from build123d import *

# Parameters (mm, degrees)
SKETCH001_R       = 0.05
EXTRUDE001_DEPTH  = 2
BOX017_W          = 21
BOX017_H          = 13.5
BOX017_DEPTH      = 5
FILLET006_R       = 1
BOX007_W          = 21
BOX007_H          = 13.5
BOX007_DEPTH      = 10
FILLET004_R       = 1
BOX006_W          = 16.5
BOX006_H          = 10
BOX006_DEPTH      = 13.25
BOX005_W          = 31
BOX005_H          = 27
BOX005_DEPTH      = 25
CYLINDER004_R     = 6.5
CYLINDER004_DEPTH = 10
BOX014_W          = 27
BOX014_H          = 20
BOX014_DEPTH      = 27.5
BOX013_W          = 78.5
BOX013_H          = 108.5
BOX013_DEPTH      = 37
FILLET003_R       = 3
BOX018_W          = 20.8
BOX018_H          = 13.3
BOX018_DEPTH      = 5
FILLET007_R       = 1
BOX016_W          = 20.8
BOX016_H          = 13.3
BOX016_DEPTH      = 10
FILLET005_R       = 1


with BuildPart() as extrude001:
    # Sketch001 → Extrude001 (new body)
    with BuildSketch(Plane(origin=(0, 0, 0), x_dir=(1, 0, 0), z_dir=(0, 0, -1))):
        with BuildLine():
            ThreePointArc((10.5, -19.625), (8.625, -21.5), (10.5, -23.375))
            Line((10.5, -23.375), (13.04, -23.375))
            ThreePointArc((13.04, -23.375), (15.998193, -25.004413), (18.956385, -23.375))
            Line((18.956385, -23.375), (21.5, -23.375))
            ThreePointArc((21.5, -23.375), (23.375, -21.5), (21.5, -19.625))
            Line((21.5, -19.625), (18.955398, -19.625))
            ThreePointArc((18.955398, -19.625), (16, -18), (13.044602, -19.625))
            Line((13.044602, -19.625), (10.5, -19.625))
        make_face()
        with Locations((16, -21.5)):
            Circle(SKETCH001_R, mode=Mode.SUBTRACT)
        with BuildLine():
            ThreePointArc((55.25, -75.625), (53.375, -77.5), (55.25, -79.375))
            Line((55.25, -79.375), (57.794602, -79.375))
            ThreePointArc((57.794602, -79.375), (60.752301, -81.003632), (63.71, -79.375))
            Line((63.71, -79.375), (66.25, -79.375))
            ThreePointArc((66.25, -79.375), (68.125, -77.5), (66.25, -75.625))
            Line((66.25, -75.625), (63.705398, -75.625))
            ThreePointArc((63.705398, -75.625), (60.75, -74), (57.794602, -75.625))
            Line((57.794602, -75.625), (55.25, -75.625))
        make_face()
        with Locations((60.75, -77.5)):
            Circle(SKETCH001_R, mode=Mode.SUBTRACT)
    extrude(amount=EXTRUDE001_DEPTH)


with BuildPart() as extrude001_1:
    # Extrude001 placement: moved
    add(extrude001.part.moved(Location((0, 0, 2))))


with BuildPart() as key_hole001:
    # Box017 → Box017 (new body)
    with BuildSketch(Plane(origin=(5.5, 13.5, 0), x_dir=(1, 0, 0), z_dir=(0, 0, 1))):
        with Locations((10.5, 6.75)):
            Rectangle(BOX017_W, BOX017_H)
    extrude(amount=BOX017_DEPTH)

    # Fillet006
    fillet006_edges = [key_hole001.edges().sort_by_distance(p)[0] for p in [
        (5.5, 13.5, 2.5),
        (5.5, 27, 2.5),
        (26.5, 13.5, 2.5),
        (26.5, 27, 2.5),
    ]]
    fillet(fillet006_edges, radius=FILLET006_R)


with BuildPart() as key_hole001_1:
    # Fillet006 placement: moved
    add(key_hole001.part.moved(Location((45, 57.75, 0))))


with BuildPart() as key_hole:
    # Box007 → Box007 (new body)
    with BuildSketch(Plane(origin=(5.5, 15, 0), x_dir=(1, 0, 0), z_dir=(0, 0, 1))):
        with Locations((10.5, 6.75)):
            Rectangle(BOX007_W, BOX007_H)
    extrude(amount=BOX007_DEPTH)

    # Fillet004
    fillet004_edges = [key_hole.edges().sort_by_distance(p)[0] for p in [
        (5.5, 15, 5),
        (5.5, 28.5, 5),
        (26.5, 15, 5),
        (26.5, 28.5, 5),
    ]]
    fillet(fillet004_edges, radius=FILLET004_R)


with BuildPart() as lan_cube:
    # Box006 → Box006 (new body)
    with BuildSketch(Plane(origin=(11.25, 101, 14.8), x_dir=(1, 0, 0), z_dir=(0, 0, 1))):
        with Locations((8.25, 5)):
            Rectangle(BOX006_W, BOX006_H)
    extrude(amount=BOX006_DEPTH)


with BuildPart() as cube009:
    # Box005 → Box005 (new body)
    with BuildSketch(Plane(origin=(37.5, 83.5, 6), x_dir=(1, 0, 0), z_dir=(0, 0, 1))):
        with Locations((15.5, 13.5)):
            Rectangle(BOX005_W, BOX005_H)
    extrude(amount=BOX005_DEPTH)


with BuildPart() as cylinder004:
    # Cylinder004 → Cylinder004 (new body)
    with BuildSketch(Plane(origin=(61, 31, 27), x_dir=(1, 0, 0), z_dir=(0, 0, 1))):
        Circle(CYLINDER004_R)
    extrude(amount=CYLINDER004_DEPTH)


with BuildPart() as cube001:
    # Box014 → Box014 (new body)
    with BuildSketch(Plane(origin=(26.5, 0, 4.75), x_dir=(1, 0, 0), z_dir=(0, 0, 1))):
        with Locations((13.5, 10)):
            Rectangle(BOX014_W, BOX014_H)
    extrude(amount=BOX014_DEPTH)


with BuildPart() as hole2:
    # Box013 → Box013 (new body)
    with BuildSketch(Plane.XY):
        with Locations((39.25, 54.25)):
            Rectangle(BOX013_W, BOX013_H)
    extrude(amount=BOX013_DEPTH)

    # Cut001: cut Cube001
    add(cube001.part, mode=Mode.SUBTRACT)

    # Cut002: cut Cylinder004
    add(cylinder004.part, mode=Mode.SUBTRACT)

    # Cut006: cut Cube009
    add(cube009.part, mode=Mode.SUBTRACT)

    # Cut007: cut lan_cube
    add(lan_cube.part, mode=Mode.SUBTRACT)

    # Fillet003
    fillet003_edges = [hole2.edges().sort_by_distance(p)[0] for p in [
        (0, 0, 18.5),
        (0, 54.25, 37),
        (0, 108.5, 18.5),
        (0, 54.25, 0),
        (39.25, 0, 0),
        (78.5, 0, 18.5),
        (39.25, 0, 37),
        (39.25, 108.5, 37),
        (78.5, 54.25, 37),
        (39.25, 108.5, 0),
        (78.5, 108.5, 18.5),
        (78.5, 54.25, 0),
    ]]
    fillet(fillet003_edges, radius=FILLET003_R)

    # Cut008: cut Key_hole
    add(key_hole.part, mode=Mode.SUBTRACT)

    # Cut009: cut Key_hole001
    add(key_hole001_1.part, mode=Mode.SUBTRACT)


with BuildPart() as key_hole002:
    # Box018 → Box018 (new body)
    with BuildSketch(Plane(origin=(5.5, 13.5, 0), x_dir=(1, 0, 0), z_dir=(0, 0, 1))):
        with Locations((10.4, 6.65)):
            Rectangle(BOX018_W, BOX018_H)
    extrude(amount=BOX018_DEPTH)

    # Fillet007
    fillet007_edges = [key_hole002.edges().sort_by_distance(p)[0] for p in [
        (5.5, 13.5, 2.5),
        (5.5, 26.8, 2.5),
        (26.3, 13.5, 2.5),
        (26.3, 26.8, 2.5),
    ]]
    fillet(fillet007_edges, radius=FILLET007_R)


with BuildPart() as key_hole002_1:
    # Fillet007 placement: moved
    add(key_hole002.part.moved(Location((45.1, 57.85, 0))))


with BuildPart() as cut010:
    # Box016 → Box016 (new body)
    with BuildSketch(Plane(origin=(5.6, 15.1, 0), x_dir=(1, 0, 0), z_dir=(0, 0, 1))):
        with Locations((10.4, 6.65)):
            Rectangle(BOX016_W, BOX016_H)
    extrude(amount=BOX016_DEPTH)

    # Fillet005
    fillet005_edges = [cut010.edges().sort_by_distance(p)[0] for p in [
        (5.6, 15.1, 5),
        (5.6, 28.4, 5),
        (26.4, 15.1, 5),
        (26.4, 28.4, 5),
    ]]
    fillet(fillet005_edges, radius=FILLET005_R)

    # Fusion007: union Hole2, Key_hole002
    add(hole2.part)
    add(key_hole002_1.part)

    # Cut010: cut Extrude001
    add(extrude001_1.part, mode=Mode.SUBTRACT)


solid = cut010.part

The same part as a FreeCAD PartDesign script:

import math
import FreeCAD as App
import Part
import Sketcher
from FreeCAD import Vector


def edges_at(feature, points):
    """Names of the edges that pass closest to the given points."""
    edges = feature.Shape.Edges
    near = lambda p: min(range(len(edges)), key=lambda i: edges[i].distToShape(Part.Vertex(*p))[0])
    return sorted({f"Edge{near(p) + 1}" for p in points})

doc = App.newDocument("Part")
body = doc.addObject("PartDesign::Body", "Body")
body.AllowCompound = True

# Sketch on XY plane
sketch1 = doc.addObject("Sketcher::SketchObject", "Sketch")
body.addObject(sketch1)
sketch1.AttachmentSupport = (doc.XY_Plane, [""])
sketch1.MapMode = "FlatFace"
sketch1.addGeometry([
    Part.ArcOfCircle(Part.Circle(Vector(10.5, 21.5, 0), Vector(0, 0, 1), 1.875), math.radians(90), math.radians(270)),  # 0
    Part.LineSegment(Vector(10.5, 23.375, 0), Vector(13.04, 23.375, 0)),  # 1
    Part.ArcOfCircle(Part.Circle(Vector(15.998193, 21.504413, 0), Vector(0, 0, 1), 3.5), math.radians(32.306848), math.radians(147.693152)),  # 2
    Part.LineSegment(Vector(18.956385, 23.375, 0), Vector(21.5, 23.375, 0)),  # 3
    Part.ArcOfCircle(Part.Circle(Vector(21.5, 21.5, 0), Vector(0, 0, 1), 1.875), math.radians(-90), math.radians(90)),  # 4
    Part.LineSegment(Vector(21.5, 19.625, 0), Vector(18.955398, 19.625, 0)),  # 5
    Part.ArcOfCircle(Part.Circle(Vector(16, 21.500001, 0), Vector(0, 0, 1), 3.500001), math.radians(-147.607628), math.radians(-32.392372)),  # 6
    Part.LineSegment(Vector(13.044602, 19.625, 0), Vector(10.5, 19.625, 0)),  # 7
    Part.Circle(Vector(16, 21.5, 0), Vector(0, 0, 1), 0.05),  # 8
    Part.ArcOfCircle(Part.Circle(Vector(55.25, 77.5, 0), Vector(0, 0, 1), 1.875), math.radians(90), math.radians(270)),  # 9
    Part.LineSegment(Vector(55.25, 79.375, 0), Vector(57.794602, 79.375, 0)),  # 10
    Part.ArcOfCircle(Part.Circle(Vector(60.752301, 77.503632, 0), Vector(0, 0, 1), 3.5), math.radians(32.321984), math.radians(147.678016)),  # 11
    Part.LineSegment(Vector(63.71, 79.375, 0), Vector(66.25, 79.375, 0)),  # 12
    Part.ArcOfCircle(Part.Circle(Vector(66.25, 77.5, 0), Vector(0, 0, 1), 1.875), math.radians(-90), math.radians(90)),  # 13
    Part.LineSegment(Vector(66.25, 75.625, 0), Vector(63.705398, 75.625, 0)),  # 14
    Part.ArcOfCircle(Part.Circle(Vector(60.75, 77.500001, 0), Vector(0, 0, 1), 3.500001), math.radians(-147.607628), math.radians(-32.392372)),  # 15
    Part.LineSegment(Vector(57.794602, 75.625, 0), Vector(55.25, 75.625, 0)),  # 16
    Part.Circle(Vector(60.75, 77.5, 0), Vector(0, 0, 1), 0.05),  # 17
], False)
sketch1.addConstraint([
    Sketcher.Constraint("Tangent", 0, 1, 1, 1),
    Sketcher.Constraint("Coincident", 1, 2, 2, 2),
    Sketcher.Constraint("Coincident", 2, 1, 3, 1),
    Sketcher.Constraint("Tangent", 3, 2, 4, 2),
    Sketcher.Constraint("Tangent", 4, 1, 5, 1),
    Sketcher.Constraint("Coincident", 5, 2, 6, 2),
    Sketcher.Constraint("Coincident", 6, 1, 7, 1),
    Sketcher.Constraint("Tangent", 7, 2, 0, 2),
    Sketcher.Constraint("Tangent", 9, 1, 10, 1),
    Sketcher.Constraint("Coincident", 10, 2, 11, 2),
    Sketcher.Constraint("Coincident", 11, 1, 12, 1),
    Sketcher.Constraint("Tangent", 12, 2, 13, 2),
    Sketcher.Constraint("Tangent", 13, 1, 14, 1),
    Sketcher.Constraint("Coincident", 14, 2, 15, 2),
    Sketcher.Constraint("Coincident", 15, 1, 16, 1),
    Sketcher.Constraint("Tangent", 16, 2, 9, 2),
    Sketcher.Constraint("Horizontal", 1),
    Sketcher.Constraint("Horizontal", 3),
    Sketcher.Constraint("Horizontal", 5),
    Sketcher.Constraint("Horizontal", 7),
    Sketcher.Constraint("Horizontal", 10),
    Sketcher.Constraint("Horizontal", 12),
    Sketcher.Constraint("Horizontal", 14),
    Sketcher.Constraint("Horizontal", 16),
    Sketcher.Constraint("Coincident", 8, 3, 6, 3),
    Sketcher.Constraint("Coincident", 17, 3, 15, 3),
    Sketcher.Constraint("Equal", 0, 4),
    Sketcher.Constraint("Equal", 2, 6),
    Sketcher.Constraint("Equal", 4, 9),
    Sketcher.Constraint("Equal", 6, 11),
    Sketcher.Constraint("Equal", 9, 13),
    Sketcher.Constraint("Equal", 11, 15),
    Sketcher.Constraint("Equal", 8, 17),
    Sketcher.Constraint("Horizontal", 0, 3, 4, 3),
    Sketcher.Constraint("Horizontal", 4, 3, 6, 3),
    Sketcher.Constraint("Horizontal", 9, 3, 13, 3),
    Sketcher.Constraint("Horizontal", 13, 3, 15, 3),
    Sketcher.Constraint("Vertical", 10, 2, 15, 1),
    Sketcher.Constraint("Equal", 5, 7),
    Sketcher.Constraint("Equal", 7, 10),
    Sketcher.Constraint("Equal", 1, 12),
    Sketcher.Constraint("Equal", 10, 14),
    Sketcher.Constraint("Diameter", 8, 0.1),
    Sketcher.Constraint("Radius", 2, 3.5),
    Sketcher.Constraint("DistanceX", -1, 1, 6, 3, 16.0),
    Sketcher.Constraint("Radius", 0, 1.875),
    Sketcher.Constraint("DistanceX", 0, 3, 4, 3, 11.0),
    Sketcher.Constraint("DistanceY", 4, 3, 9, 3, 56.0),
    Sketcher.Constraint("DistanceX", 1, 1, 1, 2, 2.54),
    Sketcher.Constraint("DistanceY", -1, 1, 0, 3, 21.5),
    Sketcher.Constraint("DistanceX", -1, 1, 9, 3, 55.25),
    Sketcher.Constraint("DistanceX", 3, 1, 3, 2, 2.543615),
])
pad1 = doc.addObject("PartDesign::Pad", "Pad")
body.addObject(pad1)
pad1.Profile = sketch1
pad1.Length = 2
pad1.Reversed = True
body2 = doc.addObject("PartDesign::Body", "Body001")
body2.AllowCompound = True
doc.recompute()

body.Placement = App.Placement(Vector(0, 0, 2), App.Rotation(Vector(0, 0, 1), 0))
boolean = doc.addObject("PartDesign::Boolean", "Boolean")
body2.addObject(boolean)
boolean.Type = "Fuse"
boolean.addObjects([body])
body3 = doc.addObject("PartDesign::Body", "Body002")

# Sketch on XY plane
sketch2 = doc.addObject("Sketcher::SketchObject", "Sketch001")
body3.addObject(sketch2)
sketch2.AttachmentSupport = (doc.getObject("XY_Plane002"), [""])
sketch2.MapMode = "FlatFace"
sketch2.addGeometry([
    Part.LineSegment(Vector(5.5, 27, 0), Vector(5.5, 13.5, 0)),
    Part.LineSegment(Vector(5.5, 13.5, 0), Vector(26.5, 13.5, 0)),
    Part.LineSegment(Vector(26.5, 13.5, 0), Vector(26.5, 27, 0)),
    Part.LineSegment(Vector(26.5, 27, 0), Vector(5.5, 27, 0)),
], False)
sketch2.addConstraint([
    Sketcher.Constraint("Coincident", 0, 2, 1, 1),
    Sketcher.Constraint("Coincident", 1, 2, 2, 1),
    Sketcher.Constraint("Coincident", 2, 2, 3, 1),
    Sketcher.Constraint("Coincident", 3, 2, 0, 1),
    Sketcher.Constraint("Vertical", 0),
    Sketcher.Constraint("Horizontal", 1),
    Sketcher.Constraint("Vertical", 2),
    Sketcher.Constraint("Horizontal", 3),
    Sketcher.Constraint("DistanceX", 1, 1, 1, 2, 21.0),
    Sketcher.Constraint("DistanceY", 0, 2, 0, 1, 13.5),
    Sketcher.Constraint("DistanceY", -1, 1, 2, 2, 27.0),
    Sketcher.Constraint("DistanceX", -1, 1, 0, 2, 5.5),
])
pad2 = doc.addObject("PartDesign::Pad", "Pad001")
body3.addObject(pad2)
pad2.Profile = sketch2
pad2.Length = 5
doc.recompute()

fillet = doc.addObject("PartDesign::Fillet", "Fillet")
body3.addObject(fillet)
fillet.Base = (pad2, edges_at(pad2, [
    (5.5, 13.5, 2.5),
    (5.5, 27, 2.5),
    (26.5, 13.5, 2.5),
    (26.5, 27, 2.5),
]))
fillet.Radius = 1
body4 = doc.addObject("PartDesign::Body", "Body003")
doc.recompute()

body3.Placement = App.Placement(Vector(45, 57.75, 0), App.Rotation(Vector(0, 0, 1), 0))
boolean2 = doc.addObject("PartDesign::Boolean", "Boolean001")
body4.addObject(boolean2)
boolean2.Type = "Fuse"
boolean2.addObjects([body3])
body5 = doc.addObject("PartDesign::Body", "Body004")

# Sketch on XY plane
sketch3 = doc.addObject("Sketcher::SketchObject", "Sketch002")
body5.addObject(sketch3)
sketch3.AttachmentSupport = (doc.getObject("XY_Plane004"), [""])
sketch3.MapMode = "FlatFace"
sketch3.addGeometry([
    Part.LineSegment(Vector(5.5, 28.5, 0), Vector(5.5, 15, 0)),
    Part.LineSegment(Vector(5.5, 15, 0), Vector(26.5, 15, 0)),
    Part.LineSegment(Vector(26.5, 15, 0), Vector(26.5, 28.5, 0)),
    Part.LineSegment(Vector(26.5, 28.5, 0), Vector(5.5, 28.5, 0)),
], False)
sketch3.addConstraint([
    Sketcher.Constraint("Coincident", 0, 2, 1, 1),
    Sketcher.Constraint("Coincident", 1, 2, 2, 1),
    Sketcher.Constraint("Coincident", 2, 2, 3, 1),
    Sketcher.Constraint("Coincident", 3, 2, 0, 1),
    Sketcher.Constraint("Vertical", 0),
    Sketcher.Constraint("Horizontal", 1),
    Sketcher.Constraint("Vertical", 2),
    Sketcher.Constraint("Horizontal", 3),
    Sketcher.Constraint("DistanceX", 1, 1, 1, 2, 21.0),
    Sketcher.Constraint("DistanceY", 0, 2, 0, 1, 13.5),
    Sketcher.Constraint("DistanceY", -1, 1, 0, 2, 15.0),
    Sketcher.Constraint("DistanceX", -1, 1, 0, 2, 5.5),
])
pad3 = doc.addObject("PartDesign::Pad", "Pad002")
body5.addObject(pad3)
pad3.Profile = sketch3
pad3.Length = 10
doc.recompute()

fillet2 = doc.addObject("PartDesign::Fillet", "Fillet001")
body5.addObject(fillet2)
fillet2.Base = (pad3, edges_at(pad3, [
    (5.5, 15, 5),
    (5.5, 28.5, 5),
    (26.5, 15, 5),
    (26.5, 28.5, 5),
]))
fillet2.Radius = 1
body6 = doc.addObject("PartDesign::Body", "Body005")

# Sketch on XY plane
sketch4 = doc.addObject("Sketcher::SketchObject", "Sketch003")
body6.addObject(sketch4)
sketch4.AttachmentSupport = (doc.getObject("XY_Plane005"), [""])
sketch4.MapMode = "FlatFace"
sketch4.AttachmentOffset = App.Placement(Vector(0, 0, 14.8), App.Rotation())
sketch4.addGeometry([
    Part.LineSegment(Vector(11.25, 111, 0), Vector(11.25, 101, 0)),
    Part.LineSegment(Vector(11.25, 101, 0), Vector(27.75, 101, 0)),
    Part.LineSegment(Vector(27.75, 101, 0), Vector(27.75, 111, 0)),
    Part.LineSegment(Vector(27.75, 111, 0), Vector(11.25, 111, 0)),
], False)
sketch4.addConstraint([
    Sketcher.Constraint("Coincident", 0, 2, 1, 1),
    Sketcher.Constraint("Coincident", 1, 2, 2, 1),
    Sketcher.Constraint("Coincident", 2, 2, 3, 1),
    Sketcher.Constraint("Coincident", 3, 2, 0, 1),
    Sketcher.Constraint("Vertical", 0),
    Sketcher.Constraint("Horizontal", 1),
    Sketcher.Constraint("Vertical", 2),
    Sketcher.Constraint("Horizontal", 3),
    Sketcher.Constraint("DistanceY", 0, 2, 0, 1, 10.0),
    Sketcher.Constraint("DistanceX", 1, 1, 1, 2, 16.5),
    Sketcher.Constraint("DistanceY", -1, 1, 0, 2, 101.0),
    Sketcher.Constraint("DistanceX", -1, 1, 0, 2, 11.25),
])
pad4 = doc.addObject("PartDesign::Pad", "Pad003")
body6.addObject(pad4)
pad4.Profile = sketch4
pad4.Length = 13.25
body7 = doc.addObject("PartDesign::Body", "Body006")

# Sketch on XY plane
sketch5 = doc.addObject("Sketcher::SketchObject", "Sketch004")
body7.addObject(sketch5)
sketch5.AttachmentSupport = (doc.getObject("XY_Plane006"), [""])
sketch5.MapMode = "FlatFace"
sketch5.AttachmentOffset = App.Placement(Vector(0, 0, 6), App.Rotation())
sketch5.addGeometry([
    Part.LineSegment(Vector(37.5, 110.5, 0), Vector(37.5, 83.5, 0)),
    Part.LineSegment(Vector(37.5, 83.5, 0), Vector(68.5, 83.5, 0)),
    Part.LineSegment(Vector(68.5, 83.5, 0), Vector(68.5, 110.5, 0)),
    Part.LineSegment(Vector(68.5, 110.5, 0), Vector(37.5, 110.5, 0)),
], False)
sketch5.addConstraint([
    Sketcher.Constraint("Coincident", 0, 2, 1, 1),
    Sketcher.Constraint("Coincident", 1, 2, 2, 1),
    Sketcher.Constraint("Coincident", 2, 2, 3, 1),
    Sketcher.Constraint("Coincident", 3, 2, 0, 1),
    Sketcher.Constraint("Vertical", 0),
    Sketcher.Constraint("Horizontal", 1),
    Sketcher.Constraint("Vertical", 2),
    Sketcher.Constraint("Horizontal", 3),
    Sketcher.Constraint("DistanceX", 1, 1, 1, 2, 31.0),
    Sketcher.Constraint("DistanceY", 0, 2, 0, 1, 27.0),
    Sketcher.Constraint("DistanceX", -1, 1, 0, 2, 37.5),
    Sketcher.Constraint("DistanceY", -1, 1, 0, 2, 83.5),
])
pad5 = doc.addObject("PartDesign::Pad", "Pad004")
body7.addObject(pad5)
pad5.Profile = sketch5
pad5.Length = 25
body8 = doc.addObject("PartDesign::Body", "Body007")

# Sketch on XY plane
sketch6 = doc.addObject("Sketcher::SketchObject", "Sketch005")
body8.addObject(sketch6)
sketch6.AttachmentSupport = (doc.getObject("XY_Plane007"), [""])
sketch6.MapMode = "FlatFace"
sketch6.AttachmentOffset = App.Placement(Vector(0, 0, 27), App.Rotation())
sketch6.addGeometry(Part.Circle(Vector(61, 31, 0), Vector(0, 0, 1), 6.5), False)
sketch6.addConstraint([
    Sketcher.Constraint("Diameter", 0, 13.0),
    Sketcher.Constraint("DistanceX", -1, 1, 0, 3, 61.0),
    Sketcher.Constraint("DistanceY", -1, 1, 0, 3, 31.0),
])
pad6 = doc.addObject("PartDesign::Pad", "Pad005")
body8.addObject(pad6)
pad6.Profile = sketch6
pad6.Length = 10
body9 = doc.addObject("PartDesign::Body", "Body008")

# Sketch on XY plane
sketch7 = doc.addObject("Sketcher::SketchObject", "Sketch006")
body9.addObject(sketch7)
sketch7.AttachmentSupport = (doc.getObject("XY_Plane008"), [""])
sketch7.MapMode = "FlatFace"
sketch7.AttachmentOffset = App.Placement(Vector(0, 0, 4.75), App.Rotation())
sketch7.addGeometry([
    Part.LineSegment(Vector(26.5, 20, 0), Vector(26.5, 0, 0)),
    Part.LineSegment(Vector(26.5, 0, 0), Vector(53.5, 0, 0)),
    Part.LineSegment(Vector(53.5, 0, 0), Vector(53.5, 20, 0)),
    Part.LineSegment(Vector(53.5, 20, 0), Vector(26.5, 20, 0)),
], False)
sketch7.addConstraint([
    Sketcher.Constraint("Coincident", 0, 2, 1, 1),
    Sketcher.Constraint("Coincident", 1, 2, 2, 1),
    Sketcher.Constraint("Coincident", 2, 2, 3, 1),
    Sketcher.Constraint("Coincident", 3, 2, 0, 1),
    Sketcher.Constraint("Vertical", 0),
    Sketcher.Constraint("Horizontal", 1),
    Sketcher.Constraint("Vertical", 2),
    Sketcher.Constraint("Horizontal", 3),
    Sketcher.Constraint("PointOnObject", 0, 2, -1),
    Sketcher.Constraint("DistanceX", 1, 1, 1, 2, 27.0),
    Sketcher.Constraint("DistanceY", 0, 2, 0, 1, 20.0),
    Sketcher.Constraint("DistanceX", -1, 1, 0, 2, 26.5),
])
pad7 = doc.addObject("PartDesign::Pad", "Pad006")
body9.addObject(pad7)
pad7.Profile = sketch7
pad7.Length = 27.5
body10 = doc.addObject("PartDesign::Body", "Body009")

# Sketch on XY plane
sketch8 = doc.addObject("Sketcher::SketchObject", "Sketch007")
body10.addObject(sketch8)
sketch8.AttachmentSupport = (doc.getObject("XY_Plane009"), [""])
sketch8.MapMode = "FlatFace"
sketch8.addGeometry([
    Part.LineSegment(Vector(0, 108.5, 0), Vector(0, 0, 0)),
    Part.LineSegment(Vector(0, 0, 0), Vector(78.5, 0, 0)),
    Part.LineSegment(Vector(78.5, 0, 0), Vector(78.5, 108.5, 0)),
    Part.LineSegment(Vector(78.5, 108.5, 0), Vector(0, 108.5, 0)),
], False)
sketch8.addConstraint([
    Sketcher.Constraint("Coincident", 0, 2, 1, 1),
    Sketcher.Constraint("Coincident", 1, 2, 2, 1),
    Sketcher.Constraint("Coincident", 2, 2, 3, 1),
    Sketcher.Constraint("Coincident", 3, 2, 0, 1),
    Sketcher.Constraint("Vertical", 0),
    Sketcher.Constraint("Horizontal", 1),
    Sketcher.Constraint("Vertical", 2),
    Sketcher.Constraint("Horizontal", 3),
    Sketcher.Constraint("Coincident", 0, 2, -1, 1),
    Sketcher.Constraint("DistanceX", 1, 1, 1, 2, 78.5),
    Sketcher.Constraint("DistanceY", 0, 2, 0, 1, 108.5),
])
pad8 = doc.addObject("PartDesign::Pad", "Pad007")
body10.addObject(pad8)
pad8.Profile = sketch8
pad8.Length = 37
doc.recompute()

boolean3 = doc.addObject("PartDesign::Boolean", "Boolean002")
body10.addObject(boolean3)
boolean3.Type = "Cut"
boolean3.addObjects([body9])
doc.recompute()

boolean4 = doc.addObject("PartDesign::Boolean", "Boolean003")
body10.addObject(boolean4)
boolean4.Type = "Cut"
boolean4.addObjects([body8])
doc.recompute()

boolean5 = doc.addObject("PartDesign::Boolean", "Boolean004")
body10.addObject(boolean5)
boolean5.Type = "Cut"
boolean5.addObjects([body7])
doc.recompute()

boolean6 = doc.addObject("PartDesign::Boolean", "Boolean005")
body10.addObject(boolean6)
boolean6.Type = "Cut"
boolean6.addObjects([body6])
doc.recompute()

fillet3 = doc.addObject("PartDesign::Fillet", "Fillet002")
body10.addObject(fillet3)
fillet3.Base = (boolean6, edges_at(boolean6, [
    (0, 0, 18.5),
    (0, 54.25, 37),
    (0, 108.5, 18.5),
    (0, 54.25, 0),
    (39.25, 0, 0),
    (78.5, 0, 18.5),
    (39.25, 0, 37),
    (39.25, 108.5, 37),
    (78.5, 54.25, 37),
    (39.25, 108.5, 0),
    (78.5, 108.5, 18.5),
    (78.5, 54.25, 0),
]))
fillet3.Radius = 3
doc.recompute()

boolean7 = doc.addObject("PartDesign::Boolean", "Boolean006")
body10.addObject(boolean7)
boolean7.Type = "Cut"
boolean7.addObjects([body5])
doc.recompute()

boolean8 = doc.addObject("PartDesign::Boolean", "Boolean007")
body10.addObject(boolean8)
boolean8.Type = "Cut"
boolean8.addObjects([body4])
body11 = doc.addObject("PartDesign::Body", "Body010")

# Sketch on XY plane
sketch9 = doc.addObject("Sketcher::SketchObject", "Sketch008")
body11.addObject(sketch9)
sketch9.AttachmentSupport = (doc.getObject("XY_Plane010"), [""])
sketch9.MapMode = "FlatFace"
sketch9.addGeometry([
    Part.LineSegment(Vector(5.5, 26.8, 0), Vector(5.5, 13.5, 0)),
    Part.LineSegment(Vector(5.5, 13.5, 0), Vector(26.3, 13.5, 0)),
    Part.LineSegment(Vector(26.3, 13.5, 0), Vector(26.3, 26.8, 0)),
    Part.LineSegment(Vector(26.3, 26.8, 0), Vector(5.5, 26.8, 0)),
], False)
sketch9.addConstraint([
    Sketcher.Constraint("Coincident", 0, 2, 1, 1),
    Sketcher.Constraint("Coincident", 1, 2, 2, 1),
    Sketcher.Constraint("Coincident", 2, 2, 3, 1),
    Sketcher.Constraint("Coincident", 3, 2, 0, 1),
    Sketcher.Constraint("Vertical", 0),
    Sketcher.Constraint("Horizontal", 1),
    Sketcher.Constraint("Vertical", 2),
    Sketcher.Constraint("Horizontal", 3),
    Sketcher.Constraint("DistanceX", 1, 1, 1, 2, 20.8),
    Sketcher.Constraint("DistanceY", 0, 2, 0, 1, 13.3),
    Sketcher.Constraint("DistanceX", -1, 1, 0, 2, 5.5),
    Sketcher.Constraint("DistanceY", -1, 1, 0, 2, 13.5),
])
pad9 = doc.addObject("PartDesign::Pad", "Pad008")
body11.addObject(pad9)
pad9.Profile = sketch9
pad9.Length = 5
doc.recompute()

fillet4 = doc.addObject("PartDesign::Fillet", "Fillet003")
body11.addObject(fillet4)
fillet4.Base = (pad9, edges_at(pad9, [
    (5.5, 13.5, 2.5),
    (5.5, 26.8, 2.5),
    (26.3, 13.5, 2.5),
    (26.3, 26.8, 2.5),
]))
fillet4.Radius = 1
body12 = doc.addObject("PartDesign::Body", "Body011")
doc.recompute()

body11.Placement = App.Placement(Vector(45.1, 57.85, 0), App.Rotation(Vector(0, 0, 1), 0))
boolean9 = doc.addObject("PartDesign::Boolean", "Boolean008")
body12.addObject(boolean9)
boolean9.Type = "Fuse"
boolean9.addObjects([body11])
body13 = doc.addObject("PartDesign::Body", "Body012")

# Sketch on XY plane
sketch10 = doc.addObject("Sketcher::SketchObject", "Sketch009")
body13.addObject(sketch10)
sketch10.AttachmentSupport = (doc.getObject("XY_Plane012"), [""])
sketch10.MapMode = "FlatFace"
sketch10.addGeometry([
    Part.LineSegment(Vector(5.6, 28.4, 0), Vector(5.6, 15.1, 0)),
    Part.LineSegment(Vector(5.6, 15.1, 0), Vector(26.4, 15.1, 0)),
    Part.LineSegment(Vector(26.4, 15.1, 0), Vector(26.4, 28.4, 0)),
    Part.LineSegment(Vector(26.4, 28.4, 0), Vector(5.6, 28.4, 0)),
], False)
sketch10.addConstraint([
    Sketcher.Constraint("Coincident", 0, 2, 1, 1),
    Sketcher.Constraint("Coincident", 1, 2, 2, 1),
    Sketcher.Constraint("Coincident", 2, 2, 3, 1),
    Sketcher.Constraint("Coincident", 3, 2, 0, 1),
    Sketcher.Constraint("Vertical", 0),
    Sketcher.Constraint("Horizontal", 1),
    Sketcher.Constraint("Vertical", 2),
    Sketcher.Constraint("Horizontal", 3),
    Sketcher.Constraint("DistanceX", 1, 1, 1, 2, 20.8),
    Sketcher.Constraint("DistanceY", 0, 2, 0, 1, 13.3),
    Sketcher.Constraint("DistanceX", -1, 1, 0, 2, 5.6),
    Sketcher.Constraint("DistanceY", -1, 1, 0, 2, 15.1),
])
pad10 = doc.addObject("PartDesign::Pad", "Pad009")
body13.addObject(pad10)
pad10.Profile = sketch10
pad10.Length = 10
doc.recompute()

fillet5 = doc.addObject("PartDesign::Fillet", "Fillet004")
body13.addObject(fillet5)
fillet5.Base = (pad10, edges_at(pad10, [
    (5.6, 15.1, 5),
    (5.6, 28.4, 5),
    (26.4, 15.1, 5),
    (26.4, 28.4, 5),
]))
fillet5.Radius = 1
doc.recompute()

boolean10 = doc.addObject("PartDesign::Boolean", "Boolean009")
body13.addObject(boolean10)
boolean10.Type = "Fuse"
boolean10.addObjects([body10])
doc.recompute()

boolean11 = doc.addObject("PartDesign::Boolean", "Boolean010")
body13.addObject(boolean11)
boolean11.Type = "Fuse"
boolean11.addObjects([body12])
doc.recompute()

boolean12 = doc.addObject("PartDesign::Boolean", "Boolean011")
body13.addObject(boolean12)
boolean12.Type = "Cut"
boolean12.addObjects([body2])

doc.recompute()
